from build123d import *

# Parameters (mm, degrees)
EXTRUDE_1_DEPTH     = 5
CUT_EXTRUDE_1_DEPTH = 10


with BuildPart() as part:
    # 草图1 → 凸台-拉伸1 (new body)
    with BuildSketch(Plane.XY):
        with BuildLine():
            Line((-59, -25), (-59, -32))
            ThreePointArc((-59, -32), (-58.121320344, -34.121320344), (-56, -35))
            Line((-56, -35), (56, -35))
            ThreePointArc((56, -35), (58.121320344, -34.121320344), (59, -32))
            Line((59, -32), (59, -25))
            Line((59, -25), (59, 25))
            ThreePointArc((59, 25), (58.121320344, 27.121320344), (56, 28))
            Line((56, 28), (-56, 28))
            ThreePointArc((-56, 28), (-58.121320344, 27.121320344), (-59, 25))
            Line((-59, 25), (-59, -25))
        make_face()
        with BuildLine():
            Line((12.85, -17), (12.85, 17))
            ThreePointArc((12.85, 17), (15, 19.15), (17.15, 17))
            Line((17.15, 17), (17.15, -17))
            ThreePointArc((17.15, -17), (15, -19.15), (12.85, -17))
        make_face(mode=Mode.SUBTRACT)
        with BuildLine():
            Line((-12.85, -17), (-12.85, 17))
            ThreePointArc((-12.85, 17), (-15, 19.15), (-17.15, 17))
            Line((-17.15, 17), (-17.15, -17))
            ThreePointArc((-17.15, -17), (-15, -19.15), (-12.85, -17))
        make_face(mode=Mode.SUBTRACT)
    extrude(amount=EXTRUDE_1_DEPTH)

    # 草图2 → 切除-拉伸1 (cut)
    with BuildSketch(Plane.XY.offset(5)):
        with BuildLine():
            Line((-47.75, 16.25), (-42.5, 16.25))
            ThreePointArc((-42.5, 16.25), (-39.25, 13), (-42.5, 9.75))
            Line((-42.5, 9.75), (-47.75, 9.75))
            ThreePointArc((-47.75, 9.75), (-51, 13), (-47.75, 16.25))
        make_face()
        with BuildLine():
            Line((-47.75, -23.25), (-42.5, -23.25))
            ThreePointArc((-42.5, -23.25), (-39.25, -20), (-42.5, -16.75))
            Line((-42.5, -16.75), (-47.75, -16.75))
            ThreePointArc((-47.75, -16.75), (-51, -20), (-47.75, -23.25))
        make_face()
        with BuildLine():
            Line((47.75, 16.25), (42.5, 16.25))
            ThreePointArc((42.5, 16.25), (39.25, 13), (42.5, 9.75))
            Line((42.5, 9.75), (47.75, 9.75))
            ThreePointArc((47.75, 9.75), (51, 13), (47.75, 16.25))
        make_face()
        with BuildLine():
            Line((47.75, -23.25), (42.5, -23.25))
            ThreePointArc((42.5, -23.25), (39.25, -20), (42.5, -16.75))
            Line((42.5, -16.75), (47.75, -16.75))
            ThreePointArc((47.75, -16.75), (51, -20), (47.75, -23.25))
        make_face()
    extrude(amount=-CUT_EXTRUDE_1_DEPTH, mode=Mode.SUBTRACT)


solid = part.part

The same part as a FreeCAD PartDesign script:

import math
import FreeCAD as App
import Part
import Sketcher
from FreeCAD import Vector

doc = App.newDocument("Part")
body = doc.addObject("PartDesign::Body", "Body")

# Sketch on XY plane
sketch1 = body.newObject("Sketcher::SketchObject", "Sketch")
sketch1.AttachmentSupport = (doc.getObject("XY_Plane"), [""])
sketch1.MapMode = "FlatFace"
sketch1.addGeometry([
    Part.ArcOfCircle(Part.Circle(Vector(-56, -32, 0), Vector(0, 0, 1), 3), math.radians(180), math.radians(270)),  # 0
    Part.LineSegment(Vector(-56, -35, 0), Vector(56, -35, 0)),  # 1
    Part.ArcOfCircle(Part.Circle(Vector(56, -32, 0), Vector(0, 0, 1), 3), math.radians(-90), math.radians(0)),  # 2
    Part.LineSegment(Vector(59, -32, 0), Vector(59, 25, 0)),  # 3
    Part.ArcOfCircle(Part.Circle(Vector(56, 25, 0), Vector(0, 0, 1), 3), math.radians(0), math.radians(90)),  # 4
    Part.LineSegment(Vector(56, 28, 0), Vector(-56, 28, 0)),  # 5
    Part.ArcOfCircle(Part.Circle(Vector(-56, 25, 0), Vector(0, 0, 1), 3), math.radians(90), math.radians(180)),  # 6
    Part.LineSegment(Vector(-59, 25, 0), Vector(-59, -32, 0)),  # 7
    Part.LineSegment(Vector(-12.85, 17, 0), Vector(-12.85, -17, 0)),  # 8
    Part.ArcOfCircle(Part.Circle(Vector(-15, -17, 0), Vector(0, 0, 1), 2.15), math.radians(180), math.radians(360)),  # 9
    Part.LineSegment(Vector(-17.15, -17, 0), Vector(-17.15, 17, 0)),  # 10
    Part.ArcOfCircle(Part.Circle(Vector(-15, 17, 0), Vector(0, 0, 1), 2.15), math.radians(0), math.radians(180)),  # 11
    Part.ArcOfCircle(Part.Circle(Vector(15, -17, 0), Vector(0, 0, 1), 2.15), math.radians(180), math.radians(360)),  # 12
    Part.LineSegment(Vector(12.85, -17, 0), Vector(12.85, 17, 0)),  # 13
    Part.ArcOfCircle(Part.Circle(Vector(15, 17, 0), Vector(0, 0, 1), 2.15), math.radians(0), math.radians(180)),  # 14
    Part.LineSegment(Vector(17.15, 17, 0), Vector(17.15, -17, 0)),  # 15
], False)
sketch1.addConstraint([
    Sketcher.Constraint("Tangent", 0, 2, 1, 1),
    Sketcher.Constraint("Tangent", 1, 2, 2, 1),
    Sketcher.Constraint("Tangent", 2, 2, 3, 1),
    Sketcher.Constraint("Tangent", 3, 2, 4, 1),
    Sketcher.Constraint("Tangent", 4, 2, 5, 1),
    Sketcher.Constraint("Tangent", 5, 2, 6, 1),
    Sketcher.Constraint("Tangent", 6, 2, 7, 1),
    Sketcher.Constraint("Tangent", 7, 2, 0, 1),
    Sketcher.Constraint("Tangent", 8, 2, 9, 2),
    Sketcher.Constraint("Tangent", 9, 1, 10, 1),
    Sketcher.Constraint("Tangent", 10, 2, 11, 2),
    Sketcher.Constraint("Tangent", 11, 1, 8, 1),
    Sketcher.Constraint("Tangent", 12, 1, 13, 1),
    Sketcher.Constraint("Tangent", 13, 2, 14, 2),
    Sketcher.Constraint("Tangent", 14, 1, 15, 1),
    Sketcher.Constraint("Tangent", 15, 2, 12, 2),
    Sketcher.Constraint("Horizontal", 1),
    Sketcher.Constraint("Vertical", 3),
    Sketcher.Constraint("Horizontal", 5),
    Sketcher.Constraint("Vertical", 7),
    Sketcher.Constraint("Vertical", 8),
    Sketcher.Constraint("Vertical", 10),
    Sketcher.Constraint("Vertical", 13),
    Sketcher.Constraint("Vertical", 15),
    Sketcher.Constraint("Equal", 0, 2),
    Sketcher.Constraint("Equal", 2, 4),
    Sketcher.Constraint("Equal", 4, 6),
    Sketcher.Constraint("Equal", 11, 12),
    Sketcher.Constraint("Symmetric", 11, 3, 12, 3, -1, 1),
    Sketcher.Constraint("Horizontal", 9, 3, 12, 3),
    Sketcher.Constraint("Horizontal", 11, 3, 14, 3),
    Sketcher.Constraint("Radius", 0, 3.0),
    Sketcher.Constraint("DistanceX", 1, 1, 1, 2, 112.0),
    Sketcher.Constraint("DistanceY", 3, 1, 3, 2, 57.0),
    Sketcher.Constraint("DistanceY", 8, 2, 8, 1, 34.0),
    Sketcher.Constraint("Radius", 9, 2.15),
    Sketcher.Constraint("DistanceX", 0, 3, -1, 1, 56.0),
    Sketcher.Constraint("DistanceY", 0, 3, -1, 1, 32.0),
    Sketcher.Constraint("DistanceX", 9, 3, -1, 1, 15.0),
])
pad1 = body.newObject("PartDesign::Pad", "Pad")
pad1.Profile = sketch1
pad1.Length = 5

# Sketch on XY plane
sketch2 = body.newObject("Sketcher::SketchObject", "Sketch001")
sketch2.AttachmentSupport = (doc.getObject("XY_Plane"), [""])
sketch2.MapMode = "FlatFace"
sketch2.AttachmentOffset = App.Placement(Vector(0, 0, 5), App.Rotation())
sketch2.addGeometry([
    Part.LineSegment(Vector(-42.5, 16.25, 0), Vector(-47.75, 16.25, 0)),  # 0
    Part.ArcOfCircle(Part.Circle(Vector(-47.75, 13, 0), Vector(0, 0, 1), 3.25), math.radians(90), math.radians(270)),  # 1
    Part.LineSegment(Vector(-47.75, 9.75, 0), Vector(-42.5, 9.75, 0)),  # 2
    Part.ArcOfCircle(Part.Circle(Vector(-42.5, 13, 0), Vector(0, 0, 1), 3.25), math.radians(-90), math.radians(90)),  # 3
    Part.LineSegment(Vector(-47.75, -23.25, 0), Vector(-42.5, -23.25, 0)),  # 4
    Part.ArcOfCircle(Part.Circle(Vector(-42.5, -20, 0), Vector(0, 0, 1), 3.25), math.radians(-90), math.radians(90)),  # 5
    Part.LineSegment(Vector(-42.5, -16.75, 0), Vector(-47.75, -16.75, 0)),  # 6
    Part.ArcOfCircle(Part.Circle(Vector(-47.75, -20, 0), Vector(0, 0, 1), 3.25), math.radians(90), math.radians(270)),  # 7
    Part.LineSegment(Vector(47.75, 16.25, 0), Vector(42.5, 16.25, 0)),  # 8
    Part.ArcOfCircle(Part.Circle(Vector(42.5, 13, 0), Vector(0, 0, 1), 3.25), math.radians(90), math.radians(270)),  # 9
    Part.LineSegment(Vector(42.5, 9.75, 0), Vector(47.75, 9.75, 0)),  # 10
    Part.ArcOfCircle(Part.Circle(Vector(47.75, 13, 0), Vector(0, 0, 1), 3.25), math.radians(-90), math.radians(90)),  # 11
    Part.LineSegment(Vector(42.5, -23.25, 0), Vector(47.75, -23.25, 0)),  # 12
    Part.ArcOfCircle(Part.Circle(Vector(47.75, -20, 0), Vector(0, 0, 1), 3.25), math.radians(-90), math.radians(90)),  # 13
    Part.LineSegment(Vector(47.75, -16.75, 0), Vector(42.5, -16.75, 0)),  # 14
    Part.ArcOfCircle(Part.Circle(Vector(42.5, -20, 0), Vector(0, 0, 1), 3.25), math.radians(90), math.radians(270)),  # 15
], False)
sketch2.addConstraint([
    Sketcher.Constraint("Tangent", 0, 2, 1, 1),
    Sketcher.Constraint("Tangent", 1, 2, 2, 1),
    Sketcher.Constraint("Tangent", 2, 2, 3, 1),
    Sketcher.Constraint("Tangent", 3, 2, 0, 1),
    Sketcher.Constraint("Tangent", 4, 2, 5, 1),
    Sketcher.Constraint("Tangent", 5, 2, 6, 1),
    Sketcher.Constraint("Tangent", 6, 2, 7, 1),
    Sketcher.Constraint("Tangent", 7, 2, 4, 1),
    Sketcher.Constraint("Tangent", 8, 2, 9, 1),
    Sketcher.Constraint("Tangent", 9, 2, 10, 1),
    Sketcher.Constraint("Tangent", 10, 2, 11, 1),
    Sketcher.Constraint("Tangent", 11, 2, 8, 1),
    Sketcher.Constraint("Tangent", 12, 2, 13, 1),
    Sketcher.Constraint("Tangent", 13, 2, 14, 1),
    Sketcher.Constraint("Tangent", 14, 2, 15, 1),
    Sketcher.Constraint("Tangent", 15, 2, 12, 1),
    Sketcher.Constraint("Horizontal", 0),
    Sketcher.Constraint("Horizontal", 2),
    Sketcher.Constraint("Horizontal", 4),
    Sketcher.Constraint("Horizontal", 6),
    Sketcher.Constraint("Horizontal", 8),
    Sketcher.Constraint("Horizontal", 10),
    Sketcher.Constraint("Horizontal", 12),
    Sketcher.Constraint("Horizontal", 14),
    Sketcher.Constraint("Equal", 3, 5),
    Sketcher.Constraint("Equal", 7, 9),
    Sketcher.Constraint("Equal", 11, 13),
    Sketcher.Constraint("Symmetric", 3, 3, 9, 3, -2),
    Sketcher.Constraint("Symmetric", 7, 3, 13, 3, -2),
    Sketcher.Constraint("Vertical", 3, 3, 5, 3),
    Sketcher.Constraint("Vertical", 1, 3, 7, 3),
    Sketcher.Constraint("Vertical", 11, 3, 13, 3),
    Sketcher.Constraint("Vertical", 9, 3, 15, 3),
    Sketcher.Constraint("Radius", 1, 3.25),
    Sketcher.Constraint("DistanceY", -1, 1, 1, 3, 13.0),
    Sketcher.Constraint("DistanceY", 5, 3, -1, 1, 20.0),
    Sketcher.Constraint("DistanceX", 3, 3, 9, 3, 85.0),
    Sketcher.Constraint("DistanceX", 0, 2, 0, 1, 5.25),
])
pocket1 = body.newObject("PartDesign::Pocket", "Pocket")
pocket1.Profile = sketch2
pocket1.Length = 10

doc.recompute()
